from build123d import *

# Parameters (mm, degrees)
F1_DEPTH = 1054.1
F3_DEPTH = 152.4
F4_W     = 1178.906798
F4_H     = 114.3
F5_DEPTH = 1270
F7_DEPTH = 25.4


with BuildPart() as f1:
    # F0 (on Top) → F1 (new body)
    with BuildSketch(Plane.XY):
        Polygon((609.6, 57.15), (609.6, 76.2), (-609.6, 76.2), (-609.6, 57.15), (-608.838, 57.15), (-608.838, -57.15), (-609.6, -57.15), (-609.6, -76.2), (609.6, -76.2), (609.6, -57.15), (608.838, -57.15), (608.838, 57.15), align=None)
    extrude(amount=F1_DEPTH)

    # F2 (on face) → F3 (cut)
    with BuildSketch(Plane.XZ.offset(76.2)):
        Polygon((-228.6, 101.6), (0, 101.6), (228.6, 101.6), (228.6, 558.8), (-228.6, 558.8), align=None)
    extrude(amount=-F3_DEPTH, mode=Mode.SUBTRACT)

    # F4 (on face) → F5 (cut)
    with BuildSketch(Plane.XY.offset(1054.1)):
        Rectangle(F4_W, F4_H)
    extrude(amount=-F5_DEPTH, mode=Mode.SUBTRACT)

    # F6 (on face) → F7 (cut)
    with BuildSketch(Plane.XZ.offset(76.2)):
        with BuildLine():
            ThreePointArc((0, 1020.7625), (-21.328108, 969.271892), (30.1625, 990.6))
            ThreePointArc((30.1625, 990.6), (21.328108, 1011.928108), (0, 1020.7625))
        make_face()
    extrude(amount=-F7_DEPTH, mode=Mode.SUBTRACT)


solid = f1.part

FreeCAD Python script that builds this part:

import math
import FreeCAD as App
import Part
import Sketcher
Q = App.Units.Quantity


def add_polygon(sketch, points):
    """Adds a closed chain of lines whose ends are joined by coincident constraints."""
    first, n = sketch.GeometryCount, len(points)
    for a, b in zip(points, points[1:] + points[:1]):
        sketch.addGeometry(Part.LineSegment(App.Vector(*a, 0), App.Vector(*b, 0)), False)
    for i in range(n):
        sketch.addConstraint(Sketcher.Constraint("Coincident", first + i, 2, first + (i + 1) % n, 1))

doc = App.newDocument("Part")
body = doc.addObject("PartDesign::Body", "Body")

sketch1 = body.newObject("Sketcher::SketchObject", "Sketch")
sketch1.AttachmentSupport = (doc.getObject("XY_Plane"), [""])
sketch1.MapMode = "FlatFace"
add_polygon(sketch1, [(609.6, 57.1), (609.6, 76.2), (-609.6, 76.2), (-609.6, 57.1), (-608.8, 57.1), (-608.8, -57.1), (-609.6, -57.1), (-609.6, -76.2), (609.6, -76.2), (609.6, -57.1), (608.8, -57.1), (608.8, 57.1)])
sketch1.addConstraint(Sketcher.Constraint("Vertical", 0))
sketch1.addConstraint(Sketcher.Constraint("Horizontal", 1))
sketch1.addConstraint(Sketcher.Constraint("Vertical", 2))
sketch1.addConstraint(Sketcher.Constraint("Horizontal", 3))
sketch1.addConstraint(Sketcher.Constraint("Vertical", 4))
sketch1.addConstraint(Sketcher.Constraint("Horizontal", 5))
sketch1.addConstraint(Sketcher.Constraint("Vertical", 6))
sketch1.addConstraint(Sketcher.Constraint("Horizontal", 7))
sketch1.addConstraint(Sketcher.Constraint("Vertical", 8))
sketch1.addConstraint(Sketcher.Constraint("Horizontal", 9))
sketch1.addConstraint(Sketcher.Constraint("Vertical", 10))
sketch1.addConstraint(Sketcher.Constraint("Horizontal", 11))
sketch1.addConstraint(Sketcher.Constraint("Symmetric", 0, 2, 6, 2, -1, 1))
sketch1.addConstraint(Sketcher.Constraint("Symmetric", 2, 2, 8, 2, -1, 1))
sketch1.addConstraint(Sketcher.Constraint("Symmetric", 4, 2, 10, 2, -1, 1))
sketch1.addConstraint(Sketcher.Constraint("Symmetric", 5, 2, 8, 2, -2))
sketch1.addConstraint(Sketcher.Constraint("DistanceX", 1, 2, 1, 1, Q("48 in")))
sketch1.addConstraint(Sketcher.Constraint("DistanceY", 4, 2, 4, 1, Q("4.5 in")))
sketch1.addConstraint(Sketcher.Constraint("DistanceY", -1, 1, 0, 2, Q("3 in")))
sketch1.addConstraint(Sketcher.Constraint("DistanceX", 3, 1, 3, 2, Q("0.03 in")))
pad1 = body.newObject("PartDesign::Pad", "Pad")
pad1.Profile = sketch1
pad1.Length = Q("41.5 in")

sketch2 = body.newObject("Sketcher::SketchObject", "Sketch001")
sketch2.AttachmentSupport = (doc.getObject("XZ_Plane"), [""])
sketch2.MapMode = "FlatFace"
sketch2.AttachmentOffset = App.Placement(App.Vector(0, 0, 3 * 25.4), App.Rotation())
add_polygon(sketch2, [(-229, 102), (229, 102), (229, 559), (-229, 559)])
sketch2.addConstraint(Sketcher.Constraint("Horizontal", 0))
sketch2.addConstraint(Sketcher.Constraint("Vertical", 1))
sketch2.addConstraint(Sketcher.Constraint("Horizontal", 2))
sketch2.addConstraint(Sketcher.Constraint("Vertical", 3))
sketch2.addConstraint(Sketcher.Constraint("Equal", 2, 1))
sketch2.addConstraint(Sketcher.Constraint("DistanceX", 0, 1, 0, 2, Q("18 in")))
sketch2.addConstraint(Sketcher.Constraint("DistanceX", -1, 1, 0, 2, Q("9 in")))
sketch2.addConstraint(Sketcher.Constraint("DistanceY", -1, 1, 0, 2, Q("4 in")))
pocket1 = body.newObject("PartDesign::Pocket", "Pocket")
pocket1.Profile = sketch2
pocket1.Length = Q("6 in")

sketch3 = body.newObject("Sketcher::SketchObject", "Sketch002")
sketch3.AttachmentSupport = (doc.getObject("XY_Plane"), [""])
sketch3.MapMode = "FlatFace"
sketch3.AttachmentOffset = App.Placement(App.Vector(0, 0, 41.5 * 25.4), App.Rotation())
add_polygon(sketch3, [(-589, 57), (-589, -57), (589, -57), (589, 57)])
sketch3.addConstraint(Sketcher.Constraint("Vertical", 0))
sketch3.addConstraint(Sketcher.Constraint("Horizontal", 1))
sketch3.addConstraint(Sketcher.Constraint("Vertical", 2))
sketch3.addConstraint(Sketcher.Constraint("Horizontal", 3))
sketch3.addConstraint(Sketcher.Constraint("Symmetric", 0, 2, 2, 2, -1, 1))
sketch3.addConstraint(Sketcher.Constraint("DistanceY", 0, 2, 0, 1, Q("4.5 in")))
sketch3.addConstraint(Sketcher.Constraint("DistanceX", 1, 1, 1, 2, 1178.906798))
pocket2 = body.newObject("PartDesign::Pocket", "Pocket001")
pocket2.Profile = sketch3
pocket2.Length = Q("50 in")

sketch4 = body.newObject("Sketcher::SketchObject", "Sketch003")
sketch4.AttachmentSupport = (doc.getObject("XZ_Plane"), [""])
sketch4.MapMode = "FlatFace"
sketch4.AttachmentOffset = App.Placement(App.Vector(0, 0, 3 * 25.4), App.Rotation())
sketch4.addGeometry(Part.ArcOfCircle(Part.Circle(App.Vector(0, 991, 0), App.Vector(0, 0, 1), 30), math.radians(90), math.radians(360)), False)
sketch4.addGeometry(Part.ArcOfCircle(Part.Circle(App.Vector(0, 991, 0), App.Vector(0, 0, 1), 30), math.radians(0), math.radians(90)), False)
sketch4.addConstraint(Sketcher.Constraint("Tangent", 0, 1, 1, 2))
sketch4.addConstraint(Sketcher.Constraint("Coincident", 1, 1, 0, 2))
sketch4.addConstraint(Sketcher.Constraint("PointOnObject", 0, 3, -2))
sketch4.addConstraint(Sketcher.Constraint("PointOnObject", 0, 1, -2))
sketch4.addConstraint(Sketcher.Constraint("Horizontal", 0, 3, 1, 1))
sketch4.addConstraint(Sketcher.Constraint("DistanceY", -1, 1, 0, 3, Q("39 in")))
sketch4.addConstraint(Sketcher.Constraint("Radius", 0, Q("1.1875 in")))
pocket3 = body.newObject("PartDesign::Pocket", "Pocket002")
pocket3.Profile = sketch4
pocket3.Length = Q("1 in")

doc.recompute()
